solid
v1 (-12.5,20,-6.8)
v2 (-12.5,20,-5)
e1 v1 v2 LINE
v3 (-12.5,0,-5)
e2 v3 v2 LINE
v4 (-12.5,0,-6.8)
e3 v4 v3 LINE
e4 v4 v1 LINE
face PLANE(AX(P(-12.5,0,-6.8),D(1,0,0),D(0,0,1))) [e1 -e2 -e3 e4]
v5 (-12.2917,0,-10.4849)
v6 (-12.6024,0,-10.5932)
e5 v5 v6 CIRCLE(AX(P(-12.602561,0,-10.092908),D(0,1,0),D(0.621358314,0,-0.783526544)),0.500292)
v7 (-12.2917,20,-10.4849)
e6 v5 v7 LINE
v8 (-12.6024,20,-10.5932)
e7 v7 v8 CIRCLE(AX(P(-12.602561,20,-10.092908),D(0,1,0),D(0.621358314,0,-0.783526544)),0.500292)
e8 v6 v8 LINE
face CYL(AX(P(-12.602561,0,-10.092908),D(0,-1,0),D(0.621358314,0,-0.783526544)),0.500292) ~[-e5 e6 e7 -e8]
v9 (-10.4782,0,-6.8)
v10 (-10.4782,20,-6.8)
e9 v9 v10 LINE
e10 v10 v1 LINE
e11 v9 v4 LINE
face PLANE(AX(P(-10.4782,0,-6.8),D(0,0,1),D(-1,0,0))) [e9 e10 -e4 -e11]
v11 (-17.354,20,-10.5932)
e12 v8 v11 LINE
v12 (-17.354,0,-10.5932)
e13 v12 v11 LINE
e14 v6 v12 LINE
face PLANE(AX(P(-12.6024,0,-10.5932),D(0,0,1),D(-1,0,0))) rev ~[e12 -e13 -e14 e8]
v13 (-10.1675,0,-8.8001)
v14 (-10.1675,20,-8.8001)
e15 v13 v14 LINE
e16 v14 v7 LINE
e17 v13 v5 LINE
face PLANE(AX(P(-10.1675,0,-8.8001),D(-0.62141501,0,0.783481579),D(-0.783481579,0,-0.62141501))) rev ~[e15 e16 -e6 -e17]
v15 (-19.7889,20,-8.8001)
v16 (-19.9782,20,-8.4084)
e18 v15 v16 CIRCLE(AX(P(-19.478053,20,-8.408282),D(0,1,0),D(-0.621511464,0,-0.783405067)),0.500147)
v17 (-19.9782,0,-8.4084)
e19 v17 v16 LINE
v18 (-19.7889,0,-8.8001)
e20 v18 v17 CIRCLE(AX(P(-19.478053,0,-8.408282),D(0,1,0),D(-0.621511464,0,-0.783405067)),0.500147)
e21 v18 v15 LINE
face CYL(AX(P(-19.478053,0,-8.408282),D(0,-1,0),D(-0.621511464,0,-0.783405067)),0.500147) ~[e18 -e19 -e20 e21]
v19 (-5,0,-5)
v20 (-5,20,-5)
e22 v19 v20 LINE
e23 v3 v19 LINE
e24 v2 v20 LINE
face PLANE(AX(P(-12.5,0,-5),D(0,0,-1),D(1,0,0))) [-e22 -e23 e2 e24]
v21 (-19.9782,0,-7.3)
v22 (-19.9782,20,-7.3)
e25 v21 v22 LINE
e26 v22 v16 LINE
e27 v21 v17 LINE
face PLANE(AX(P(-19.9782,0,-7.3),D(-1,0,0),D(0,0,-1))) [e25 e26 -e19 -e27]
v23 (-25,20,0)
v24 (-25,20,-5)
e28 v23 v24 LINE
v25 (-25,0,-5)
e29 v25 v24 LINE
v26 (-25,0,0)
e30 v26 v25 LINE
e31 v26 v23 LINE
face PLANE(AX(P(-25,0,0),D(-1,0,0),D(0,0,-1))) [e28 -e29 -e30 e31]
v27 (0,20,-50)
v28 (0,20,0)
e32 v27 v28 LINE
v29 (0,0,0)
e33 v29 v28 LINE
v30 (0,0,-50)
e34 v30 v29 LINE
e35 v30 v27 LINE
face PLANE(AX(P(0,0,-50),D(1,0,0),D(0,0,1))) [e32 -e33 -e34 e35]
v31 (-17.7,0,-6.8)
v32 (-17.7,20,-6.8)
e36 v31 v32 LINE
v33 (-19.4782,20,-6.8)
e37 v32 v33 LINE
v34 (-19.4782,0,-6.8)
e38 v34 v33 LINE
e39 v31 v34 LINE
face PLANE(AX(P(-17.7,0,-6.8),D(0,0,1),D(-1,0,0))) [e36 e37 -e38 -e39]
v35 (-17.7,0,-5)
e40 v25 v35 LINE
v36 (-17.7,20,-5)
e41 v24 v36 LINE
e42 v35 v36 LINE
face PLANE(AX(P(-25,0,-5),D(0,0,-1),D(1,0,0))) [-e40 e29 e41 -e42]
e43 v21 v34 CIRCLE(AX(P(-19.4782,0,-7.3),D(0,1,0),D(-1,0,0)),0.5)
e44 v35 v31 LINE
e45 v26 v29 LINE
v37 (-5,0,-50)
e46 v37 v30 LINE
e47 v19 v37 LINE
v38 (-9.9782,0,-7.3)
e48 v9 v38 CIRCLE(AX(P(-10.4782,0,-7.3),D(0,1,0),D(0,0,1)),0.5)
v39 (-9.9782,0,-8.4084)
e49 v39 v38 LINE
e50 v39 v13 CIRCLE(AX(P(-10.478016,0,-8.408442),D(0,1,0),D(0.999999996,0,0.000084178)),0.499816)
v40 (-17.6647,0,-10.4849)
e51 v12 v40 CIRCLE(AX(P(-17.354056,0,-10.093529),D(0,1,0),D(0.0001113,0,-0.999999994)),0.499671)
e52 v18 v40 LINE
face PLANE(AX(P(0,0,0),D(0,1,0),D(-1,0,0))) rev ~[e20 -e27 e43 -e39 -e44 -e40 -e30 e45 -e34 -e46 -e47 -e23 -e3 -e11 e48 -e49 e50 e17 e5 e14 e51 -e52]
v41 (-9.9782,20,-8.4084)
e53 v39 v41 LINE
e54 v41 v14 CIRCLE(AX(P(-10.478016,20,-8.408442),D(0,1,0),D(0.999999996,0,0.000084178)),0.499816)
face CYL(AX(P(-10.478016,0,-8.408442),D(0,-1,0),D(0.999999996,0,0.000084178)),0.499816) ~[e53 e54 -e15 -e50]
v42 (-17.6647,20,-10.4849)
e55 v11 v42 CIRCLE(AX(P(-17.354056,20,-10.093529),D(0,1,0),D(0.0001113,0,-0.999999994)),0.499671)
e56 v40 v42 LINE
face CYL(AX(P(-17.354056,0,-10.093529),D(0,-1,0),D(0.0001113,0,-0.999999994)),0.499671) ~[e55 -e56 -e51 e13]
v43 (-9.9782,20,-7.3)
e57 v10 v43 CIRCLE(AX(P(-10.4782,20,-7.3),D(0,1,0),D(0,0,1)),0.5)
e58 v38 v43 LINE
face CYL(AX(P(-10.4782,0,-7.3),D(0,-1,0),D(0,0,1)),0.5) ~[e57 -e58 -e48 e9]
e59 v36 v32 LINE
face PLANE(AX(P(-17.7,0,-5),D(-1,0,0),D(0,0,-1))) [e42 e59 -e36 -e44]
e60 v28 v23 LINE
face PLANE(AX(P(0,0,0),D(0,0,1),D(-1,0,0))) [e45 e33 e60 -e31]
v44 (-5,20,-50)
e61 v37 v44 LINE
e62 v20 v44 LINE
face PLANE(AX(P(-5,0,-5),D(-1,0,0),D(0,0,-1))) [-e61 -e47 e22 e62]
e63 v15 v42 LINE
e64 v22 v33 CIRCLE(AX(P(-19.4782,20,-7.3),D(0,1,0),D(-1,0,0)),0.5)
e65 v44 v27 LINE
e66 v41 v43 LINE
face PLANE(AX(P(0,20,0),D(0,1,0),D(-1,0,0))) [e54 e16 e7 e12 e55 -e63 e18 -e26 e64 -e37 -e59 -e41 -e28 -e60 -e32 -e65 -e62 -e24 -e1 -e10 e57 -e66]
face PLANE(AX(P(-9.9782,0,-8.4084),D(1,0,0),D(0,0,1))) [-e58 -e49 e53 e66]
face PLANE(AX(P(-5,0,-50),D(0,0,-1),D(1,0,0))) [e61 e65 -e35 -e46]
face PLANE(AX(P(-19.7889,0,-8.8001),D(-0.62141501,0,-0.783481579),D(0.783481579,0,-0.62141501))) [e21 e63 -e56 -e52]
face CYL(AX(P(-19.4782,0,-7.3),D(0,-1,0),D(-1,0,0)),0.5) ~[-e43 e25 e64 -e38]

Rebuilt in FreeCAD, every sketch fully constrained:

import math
import FreeCAD as App
import Part
import Sketcher
from FreeCAD import Vector
Q = App.Units.Quantity

doc = App.newDocument("Part")
body = doc.addObject("PartDesign::Body", "Body")

sketch1 = doc.addObject("Sketcher::SketchObject", "Sketch")
body.addObject(sketch1)
sketch1.AttachmentSupport = (doc.XZ_Plane, [""])
sketch1.MapMode = "FlatFace"
sketch1.addGeometry(Part.LineSegment(Vector(0, 0, 0), Vector(0, -50, 0)), False)
sketch1.addGeometry(Part.LineSegment(Vector(0, -50, 0), Vector(-5, -50, 0)), False)
sketch1.addGeometry(Part.LineSegment(Vector(-5, -50, 0), Vector(-5, -5, 0)), False)
sketch1.addGeometry(Part.LineSegment(Vector(-5, -5, 0), Vector(-12.5, -5, 0)), False)
sketch1.addGeometry(Part.LineSegment(Vector(-12.5, -5, 0), Vector(-12.5, -6.8, 0)), False)
sketch1.addGeometry(Part.LineSegment(Vector(-12.5, -6.8, 0), Vector(-10.4782, -6.8, 0)), False)
sketch1.addGeometry(Part.ArcOfCircle(Part.Circle(Vector(-10.4782, -7.3, 0), Vector(0, 0, 1), 0.5), math.radians(0), math.radians(90)), False)
sketch1.addGeometry(Part.LineSegment(Vector(-9.9782, -7.3, 0), Vector(-9.9782, -8.4084, 0)), False)
sketch1.addGeometry(Part.ArcOfCircle(Part.Circle(Vector(-10.4782, -8.4084, 0), Vector(0, 0, 1), 0.5), math.radians(-51.578229), math.radians(0)), False)
sketch1.addGeometry(Part.LineSegment(Vector(-10.1675, -8.8001, 0), Vector(-12.2917, -10.4849, 0)), False)
sketch1.addGeometry(Part.ArcOfCircle(Part.Circle(Vector(-12.6024, -10.0932, 0), Vector(0, 0, 1), 0.499963), math.radians(-90), math.radians(-51.578229)), False)
sketch1.addGeometry(Part.LineSegment(Vector(-12.6024, -10.5932, 0), Vector(-17.354, -10.5932, 0)), False)
sketch1.addGeometry(Part.ArcOfCircle(Part.Circle(Vector(-17.354, -10.0932, 0), Vector(0, 0, 1), 0.5), math.radians(-128.421771), math.radians(-90)), False)
sketch1.addGeometry(Part.LineSegment(Vector(-17.6647, -10.4849, 0), Vector(-19.7889, -8.8001, 0)), False)
sketch1.addGeometry(Part.ArcOfCircle(Part.Circle(Vector(-19.4782, -8.4084, 0), Vector(0, 0, 1), 0.499963), math.radians(180), math.radians(231.578229)), False)
sketch1.addGeometry(Part.LineSegment(Vector(-19.9782, -8.4084, 0), Vector(-19.9782, -7.3, 0)), False)
sketch1.addGeometry(Part.ArcOfCircle(Part.Circle(Vector(-19.4782, -7.3, 0), Vector(0, 0, 1), 0.5), math.radians(90), math.radians(180)), False)
sketch1.addGeometry(Part.LineSegment(Vector(-19.4782, -6.8, 0), Vector(-17.7, -6.8, 0)), False)
sketch1.addGeometry(Part.LineSegment(Vector(-17.7, -6.8, 0), Vector(-17.7, -5, 0)), False)
sketch1.addGeometry(Part.LineSegment(Vector(-17.7, -5, 0), Vector(-25, -5, 0)), False)
sketch1.addGeometry(Part.LineSegment(Vector(-25, -5, 0), Vector(-25, 0, 0)), False)
sketch1.addGeometry(Part.LineSegment(Vector(-25, 0, 0), Vector(0, 0, 0)), False)
sketch1.addConstraint(Sketcher.Constraint("Coincident", 0, 2, 1, 1))
sketch1.addConstraint(Sketcher.Constraint("Coincident", 1, 2, 2, 1))
sketch1.addConstraint(Sketcher.Constraint("Coincident", 2, 2, 3, 1))
sketch1.addConstraint(Sketcher.Constraint("Coincident", 3, 2, 4, 1))
sketch1.addConstraint(Sketcher.Constraint("Coincident", 4, 2, 5, 1))
sketch1.addConstraint(Sketcher.Constraint("Tangent", 5, 2, 6, 2))
sketch1.addConstraint(Sketcher.Constraint("Tangent", 6, 1, 7, 1))
sketch1.addConstraint(Sketcher.Constraint("Tangent", 7, 2, 8, 2))
sketch1.addConstraint(Sketcher.Constraint("Tangent", 8, 1, 9, 1))
sketch1.addConstraint(Sketcher.Constraint("Tangent", 9, 2, 10, 2))
sketch1.addConstraint(Sketcher.Constraint("Tangent", 10, 1, 11, 1))
sketch1.addConstraint(Sketcher.Constraint("Tangent", 11, 2, 12, 2))
sketch1.addConstraint(Sketcher.Constraint("Tangent", 12, 1, 13, 1))
sketch1.addConstraint(Sketcher.Constraint("Tangent", 13, 2, 14, 2))
sketch1.addConstraint(Sketcher.Constraint("Tangent", 14, 1, 15, 1))
sketch1.addConstraint(Sketcher.Constraint("Tangent", 15, 2, 16, 2))
sketch1.addConstraint(Sketcher.Constraint("Tangent", 16, 1, 17, 1))
sketch1.addConstraint(Sketcher.Constraint("Coincident", 17, 2, 18, 1))
sketch1.addConstraint(Sketcher.Constraint("Coincident", 18, 2, 19, 1))
sketch1.addConstraint(Sketcher.Constraint("Coincident", 19, 2, 20, 1))
sketch1.addConstraint(Sketcher.Constraint("Coincident", 20, 2, 21, 1))
sketch1.addConstraint(Sketcher.Constraint("Coincident", 21, 2, 0, 1))
sketch1.addConstraint(Sketcher.Constraint("Vertical", 0))
sketch1.addConstraint(Sketcher.Constraint("Horizontal", 1))
sketch1.addConstraint(Sketcher.Constraint("Vertical", 2))
sketch1.addConstraint(Sketcher.Constraint("Horizontal", 3))
sketch1.addConstraint(Sketcher.Constraint("Vertical", 4))
sketch1.addConstraint(Sketcher.Constraint("Horizontal", 5))
sketch1.addConstraint(Sketcher.Constraint("Vertical", 7))
sketch1.addConstraint(Sketcher.Constraint("Horizontal", 11))
sketch1.addConstraint(Sketcher.Constraint("Vertical", 15))
sketch1.addConstraint(Sketcher.Constraint("Horizontal", 17))
sketch1.addConstraint(Sketcher.Constraint("Vertical", 18))
sketch1.addConstraint(Sketcher.Constraint("Horizontal", 19))
sketch1.addConstraint(Sketcher.Constraint("Vertical", 20))
sketch1.addConstraint(Sketcher.Constraint("Horizontal", 21))
sketch1.addConstraint(Sketcher.Constraint("Coincident", 21, 2, -1, 1))
sketch1.addConstraint(Sketcher.Constraint("Equal", 6, 8))
sketch1.addConstraint(Sketcher.Constraint("Equal", 8, 10))
sketch1.addConstraint(Sketcher.Constraint("Equal", 10, 12))
sketch1.addConstraint(Sketcher.Constraint("Equal", 12, 14))
sketch1.addConstraint(Sketcher.Constraint("Equal", 14, 16))
sketch1.addConstraint(Sketcher.Constraint("Horizontal", 8, 3, 14, 3))
sketch1.addConstraint(Sketcher.Constraint("Horizontal", 6, 3, 16, 3))
sketch1.addConstraint(Sketcher.Constraint("Horizontal", 9, 2, 12, 1))
sketch1.addConstraint(Sketcher.Constraint("Horizontal", 3, 2, 18, 2))
sketch1.addConstraint(Sketcher.Constraint("Equal", 1, 20))
sketch1.addConstraint(Sketcher.Constraint("Radius", 6, Q("0.5 mm")))
sketch1.addConstraint(Sketcher.Constraint("DistanceX", 1, 2, 1, 1, Q("5 mm")))
sketch1.addConstraint(Sketcher.Constraint("DistanceX", 21, 1, 21, 2, Q("25 mm")))
sketch1.addConstraint(Sketcher.Constraint("DistanceY", 0, 2, 0, 1, Q("50 mm")))
sketch1.addConstraint(Sketcher.Constraint("DistanceX", 3, 2, 3, 1, Q("7.5 mm")))
sketch1.addConstraint(Sketcher.Constraint("DistanceY", 4, 2, 4, 1, Q("1.8 mm")))
sketch1.addConstraint(Sketcher.Constraint("DistanceX", 19, 2, 19, 1, Q("7.3 mm")))
sketch1.addConstraint(Sketcher.Constraint("DistanceX", 14, 3, 8, 3, Q("9 mm")))
sketch1.addConstraint(Sketcher.Constraint("DistanceY", 13, 2, 16, 1, Q("2 mm")))
sketch1.addConstraint(Sketcher.Constraint("Angle", 9, Q("-141.5805 deg")))
sketch1.addConstraint(Sketcher.Constraint("DistanceX", 5, 1, 5, 2, Q("2.0218 mm")))
sketch1.addConstraint(Sketcher.Constraint("DistanceX", 11, 2, 11, 1, Q("4.7516 mm")))
pad1 = doc.addObject("PartDesign::Pad", "Pad")
body.addObject(pad1)
pad1.Profile = sketch1
pad1.Length = 20
pad1.Reversed = True

doc.recompute()
